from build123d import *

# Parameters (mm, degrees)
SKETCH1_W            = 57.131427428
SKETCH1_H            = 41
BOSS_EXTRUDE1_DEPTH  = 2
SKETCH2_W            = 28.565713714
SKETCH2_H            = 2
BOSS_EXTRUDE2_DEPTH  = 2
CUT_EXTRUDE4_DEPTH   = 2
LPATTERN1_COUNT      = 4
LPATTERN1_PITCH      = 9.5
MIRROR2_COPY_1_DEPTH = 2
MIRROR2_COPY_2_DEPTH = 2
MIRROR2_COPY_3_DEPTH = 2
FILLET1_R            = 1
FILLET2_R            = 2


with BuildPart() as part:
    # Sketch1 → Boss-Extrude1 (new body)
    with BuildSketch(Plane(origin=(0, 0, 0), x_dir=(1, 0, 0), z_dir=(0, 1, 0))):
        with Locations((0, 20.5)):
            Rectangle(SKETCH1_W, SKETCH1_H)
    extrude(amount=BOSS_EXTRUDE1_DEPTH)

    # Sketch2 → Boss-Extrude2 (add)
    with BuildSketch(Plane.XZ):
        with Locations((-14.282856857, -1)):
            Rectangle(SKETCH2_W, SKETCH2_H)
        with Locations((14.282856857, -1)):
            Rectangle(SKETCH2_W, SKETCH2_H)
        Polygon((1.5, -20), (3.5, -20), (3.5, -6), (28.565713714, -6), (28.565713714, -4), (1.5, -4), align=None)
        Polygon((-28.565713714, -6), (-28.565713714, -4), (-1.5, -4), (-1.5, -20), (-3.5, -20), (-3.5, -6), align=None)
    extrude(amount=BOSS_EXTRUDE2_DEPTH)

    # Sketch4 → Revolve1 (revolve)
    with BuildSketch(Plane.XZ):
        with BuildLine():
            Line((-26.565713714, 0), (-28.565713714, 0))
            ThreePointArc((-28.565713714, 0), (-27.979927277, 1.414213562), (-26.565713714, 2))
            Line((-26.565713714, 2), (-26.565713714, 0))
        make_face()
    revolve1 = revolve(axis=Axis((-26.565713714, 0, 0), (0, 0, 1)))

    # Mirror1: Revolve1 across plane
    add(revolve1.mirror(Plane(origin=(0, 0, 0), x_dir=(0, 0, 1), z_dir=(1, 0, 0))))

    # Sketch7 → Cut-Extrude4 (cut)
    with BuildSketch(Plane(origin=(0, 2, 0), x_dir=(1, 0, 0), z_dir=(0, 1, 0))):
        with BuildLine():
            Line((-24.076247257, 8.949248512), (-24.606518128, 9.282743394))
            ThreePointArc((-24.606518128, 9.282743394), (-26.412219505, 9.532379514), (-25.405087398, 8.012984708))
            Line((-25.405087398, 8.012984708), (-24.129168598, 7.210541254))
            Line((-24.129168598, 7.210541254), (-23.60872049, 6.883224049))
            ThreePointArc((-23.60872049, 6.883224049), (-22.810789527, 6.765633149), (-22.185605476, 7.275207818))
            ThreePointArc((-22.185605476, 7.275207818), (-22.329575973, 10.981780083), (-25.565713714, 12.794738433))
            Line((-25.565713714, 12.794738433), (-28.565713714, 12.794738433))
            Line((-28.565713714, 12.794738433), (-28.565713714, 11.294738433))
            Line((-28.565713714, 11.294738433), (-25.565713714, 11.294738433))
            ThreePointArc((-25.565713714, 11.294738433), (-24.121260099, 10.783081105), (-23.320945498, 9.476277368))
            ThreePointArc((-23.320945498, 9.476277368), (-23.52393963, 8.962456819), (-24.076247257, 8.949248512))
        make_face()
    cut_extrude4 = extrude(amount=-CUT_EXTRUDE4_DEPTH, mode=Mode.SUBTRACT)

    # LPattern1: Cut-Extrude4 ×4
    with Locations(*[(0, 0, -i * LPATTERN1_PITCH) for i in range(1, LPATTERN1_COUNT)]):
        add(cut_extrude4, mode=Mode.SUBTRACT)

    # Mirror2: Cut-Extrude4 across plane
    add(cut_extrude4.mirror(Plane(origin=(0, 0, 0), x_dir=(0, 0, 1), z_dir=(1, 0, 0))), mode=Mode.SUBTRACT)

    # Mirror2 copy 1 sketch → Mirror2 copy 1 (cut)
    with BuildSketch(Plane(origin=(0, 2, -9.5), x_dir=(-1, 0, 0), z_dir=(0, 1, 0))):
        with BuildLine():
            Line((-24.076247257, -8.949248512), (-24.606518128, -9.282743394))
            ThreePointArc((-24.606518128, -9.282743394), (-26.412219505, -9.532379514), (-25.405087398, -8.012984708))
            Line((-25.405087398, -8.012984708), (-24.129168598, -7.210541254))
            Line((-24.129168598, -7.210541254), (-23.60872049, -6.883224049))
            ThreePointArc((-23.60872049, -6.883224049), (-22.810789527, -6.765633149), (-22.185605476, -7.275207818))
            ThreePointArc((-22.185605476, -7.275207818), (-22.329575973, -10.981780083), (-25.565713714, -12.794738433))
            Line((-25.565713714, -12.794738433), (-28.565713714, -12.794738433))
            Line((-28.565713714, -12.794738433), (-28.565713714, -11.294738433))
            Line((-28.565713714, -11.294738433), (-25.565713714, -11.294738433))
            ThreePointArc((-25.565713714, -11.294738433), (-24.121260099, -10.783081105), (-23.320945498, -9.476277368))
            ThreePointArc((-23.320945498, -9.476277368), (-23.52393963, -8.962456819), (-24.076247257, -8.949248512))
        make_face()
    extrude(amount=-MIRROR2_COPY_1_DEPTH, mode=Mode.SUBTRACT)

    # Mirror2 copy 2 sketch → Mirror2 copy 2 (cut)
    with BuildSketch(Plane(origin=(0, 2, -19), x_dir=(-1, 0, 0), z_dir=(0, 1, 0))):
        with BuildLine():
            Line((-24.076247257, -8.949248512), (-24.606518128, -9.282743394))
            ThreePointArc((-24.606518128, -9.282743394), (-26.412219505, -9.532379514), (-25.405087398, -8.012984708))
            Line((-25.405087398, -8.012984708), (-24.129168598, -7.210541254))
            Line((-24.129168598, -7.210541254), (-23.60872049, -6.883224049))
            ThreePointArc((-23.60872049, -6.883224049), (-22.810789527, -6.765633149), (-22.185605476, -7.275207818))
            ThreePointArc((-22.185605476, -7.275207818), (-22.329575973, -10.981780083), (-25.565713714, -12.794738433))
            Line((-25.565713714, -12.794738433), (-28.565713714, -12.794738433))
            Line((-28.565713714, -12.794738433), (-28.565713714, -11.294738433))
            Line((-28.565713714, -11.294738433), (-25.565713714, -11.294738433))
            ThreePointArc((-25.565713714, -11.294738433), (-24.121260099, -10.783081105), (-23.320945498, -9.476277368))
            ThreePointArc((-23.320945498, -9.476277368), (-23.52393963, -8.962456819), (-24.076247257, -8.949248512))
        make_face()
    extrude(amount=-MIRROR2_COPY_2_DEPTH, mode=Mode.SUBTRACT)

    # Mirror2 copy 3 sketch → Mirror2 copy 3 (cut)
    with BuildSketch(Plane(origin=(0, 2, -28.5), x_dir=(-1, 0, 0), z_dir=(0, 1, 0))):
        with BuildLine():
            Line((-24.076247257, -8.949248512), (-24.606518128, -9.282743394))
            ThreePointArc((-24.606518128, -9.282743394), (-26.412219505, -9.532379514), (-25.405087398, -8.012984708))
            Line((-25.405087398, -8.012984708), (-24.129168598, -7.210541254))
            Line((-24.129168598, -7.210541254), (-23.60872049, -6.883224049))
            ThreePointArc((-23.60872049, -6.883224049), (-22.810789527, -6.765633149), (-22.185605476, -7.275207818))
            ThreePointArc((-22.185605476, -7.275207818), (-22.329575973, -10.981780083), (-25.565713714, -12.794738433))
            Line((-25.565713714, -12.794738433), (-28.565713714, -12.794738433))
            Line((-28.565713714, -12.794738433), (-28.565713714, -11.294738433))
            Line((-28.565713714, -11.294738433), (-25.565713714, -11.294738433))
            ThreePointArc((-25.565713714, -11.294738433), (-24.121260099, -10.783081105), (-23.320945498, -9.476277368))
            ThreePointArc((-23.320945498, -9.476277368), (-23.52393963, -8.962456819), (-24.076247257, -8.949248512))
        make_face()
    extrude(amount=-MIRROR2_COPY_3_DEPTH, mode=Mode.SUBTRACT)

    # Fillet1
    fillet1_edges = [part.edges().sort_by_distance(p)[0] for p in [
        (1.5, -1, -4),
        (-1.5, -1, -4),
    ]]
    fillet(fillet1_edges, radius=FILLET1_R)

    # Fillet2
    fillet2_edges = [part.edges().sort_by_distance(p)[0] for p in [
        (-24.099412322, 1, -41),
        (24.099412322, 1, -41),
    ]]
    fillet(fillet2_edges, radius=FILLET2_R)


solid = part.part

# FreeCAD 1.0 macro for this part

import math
import FreeCAD as App
import Part
import Sketcher


def edges_at(feature, points):
    """Names of the edges that pass closest to the given points."""
    edges = feature.Shape.Edges
    near = lambda p: min(range(len(edges)), key=lambda i: edges[i].distToShape(Part.Vertex(*p))[0])
    return sorted({f"Edge{near(p) + 1}" for p in points})


def add_polygon(sketch, points):
    """Adds a closed chain of lines whose ends are joined by coincident constraints."""
    first, n = sketch.GeometryCount, len(points)
    for a, b in zip(points, points[1:] + points[:1]):
        sketch.addGeometry(Part.LineSegment(App.Vector(*a, 0), App.Vector(*b, 0)), False)
    for i in range(n):
        sketch.addConstraint(Sketcher.Constraint("Coincident", first + i, 2, first + (i + 1) % n, 1))

doc = App.newDocument("Part")
body = doc.addObject("PartDesign::Body", "Body")

sketch1 = body.newObject("Sketcher::SketchObject", "Sketch")
sketch1.AttachmentSupport = (doc.getObject("XZ_Plane"), [""])
sketch1.MapMode = "FlatFace"
add_polygon(sketch1, [(-28.565714, -41), (-28.565714, 0), (28.565714, 0), (28.565714, -41)])
sketch1.addConstraint(Sketcher.Constraint("Vertical", 0))
sketch1.addConstraint(Sketcher.Constraint("Horizontal", 1))
sketch1.addConstraint(Sketcher.Constraint("Vertical", 2))
sketch1.addConstraint(Sketcher.Constraint("Horizontal", 3))
sketch1.addConstraint(Sketcher.Constraint("Symmetric", 0, 2, 1, 2, -1, 1))
sketch1.addConstraint(Sketcher.Constraint("DistanceY", 0, 1, 0, 2, 41.0))
sketch1.addConstraint(Sketcher.Constraint("DistanceX", 1, 1, 1, 2, 57.131427))
pad1 = body.newObject("PartDesign::Pad", "Pad")
pad1.Profile = sketch1
pad1.Length = 2
pad1.Reversed = True

sketch2 = body.newObject("Sketcher::SketchObject", "Sketch001")
sketch2.AttachmentSupport = (doc.getObject("XZ_Plane"), [""])
sketch2.MapMode = "FlatFace"
add_polygon(sketch2, [(-28.565714, 0), (-28.565714, -2), (28.565714, -2), (28.565714, 0)])
add_polygon(sketch2, [(1.5, -20), (3.5, -20), (3.5, -6), (28.565714, -6), (28.565714, -4), (1.5, -4)])
add_polygon(sketch2, [(-28.565714, -4), (-28.565714, -6), (-3.5, -6), (-3.5, -20), (-1.5, -20), (-1.5, -4)])
sketch2.addConstraint(Sketcher.Constraint("Vertical", 0))
sketch2.addConstraint(Sketcher.Constraint("Horizontal", 1))
sketch2.addConstraint(Sketcher.Constraint("Vertical", 2))
sketch2.addConstraint(Sketcher.Constraint("Horizontal", 3))
sketch2.addConstraint(Sketcher.Constraint("Horizontal", 4))
sketch2.addConstraint(Sketcher.Constraint("Vertical", 5))
sketch2.addConstraint(Sketcher.Constraint("Horizontal", 6))
sketch2.addConstraint(Sketcher.Constraint("Vertical", 7))
sketch2.addConstraint(Sketcher.Constraint("Horizontal", 8))
sketch2.addConstraint(Sketcher.Constraint("Vertical", 9))
sketch2.addConstraint(Sketcher.Constraint("Vertical", 10))
sketch2.addConstraint(Sketcher.Constraint("Horizontal", 11))
sketch2.addConstraint(Sketcher.Constraint("Vertical", 12))
sketch2.addConstraint(Sketcher.Constraint("Horizontal", 13))
sketch2.addConstraint(Sketcher.Constraint("Vertical", 14))
sketch2.addConstraint(Sketcher.Constraint("Horizontal", 15))
sketch2.addConstraint(Sketcher.Constraint("Symmetric", 2, 2, 3, 2, -1, 1))
sketch2.addConstraint(Sketcher.Constraint("Symmetric", 6, 2, 10, 2, -2))
sketch2.addConstraint(Sketcher.Constraint("Symmetric", 4, 2, 12, 2, -2))
sketch2.addConstraint(Sketcher.Constraint("Symmetric", 8, 2, 14, 2, -2))
sketch2.addConstraint(Sketcher.Constraint("Vertical", 2, 2, 6, 2))
sketch2.addConstraint(Sketcher.Constraint("Equal", 13, 0))
sketch2.addConstraint(Sketcher.Constraint("Equal", 2, 7))
sketch2.addConstraint(Sketcher.Constraint("DistanceX", 4, 1, 4, 2, 2.0))
sketch2.addConstraint(Sketcher.Constraint("DistanceY", 5, 1, 5, 2, 14.0))
sketch2.addConstraint(Sketcher.Constraint("DistanceY", 4, 2, -1, 1, 20.0))
sketch2.addConstraint(Sketcher.Constraint("DistanceX", 11, 2, 8, 2, 5.0))
sketch2.addConstraint(Sketcher.Constraint("DistanceX", 1, 1, 1, 2, 57.131427))
pad2 = body.newObject("PartDesign::Pad", "Pad001")
pad2.Profile = sketch2
pad2.Length = 2

sketch3 = body.newObject("Sketcher::SketchObject", "Sketch002")
sketch3.AttachmentSupport = (doc.getObject("XZ_Plane"), [""])
sketch3.MapMode = "FlatFace"
sketch3.addGeometry(Part.LineSegment(App.Vector(-28.565714, 0, 0), App.Vector(-26.565714, 0, 0)), False)
sketch3.addGeometry(Part.LineSegment(App.Vector(-26.565714, 0, 0), App.Vector(-26.565714, 2, 0)), False)
sketch3.addGeometry(Part.ArcOfCircle(Part.Circle(App.Vector(-26.565714, 0, 0), App.Vector(0, 0, 1), 2), math.radians(90), math.radians(180)), False)
sketch3.addGeometry(Part.LineSegment(App.Vector(-26.565714, 0, 0), App.Vector(-26.565714, 2, 0)), True)
sketch3.addConstraint(Sketcher.Constraint("Coincident", 0, 2, 1, 1))
sketch3.addConstraint(Sketcher.Constraint("Coincident", 1, 2, 2, 1))
sketch3.addConstraint(Sketcher.Constraint("Coincident", 2, 2, 0, 1))
sketch3.addConstraint(Sketcher.Constraint("Horizontal", 0))
sketch3.addConstraint(Sketcher.Constraint("Vertical", 1))
sketch3.addConstraint(Sketcher.Constraint("Vertical", 3))
sketch3.addConstraint(Sketcher.Constraint("Coincident", 0, 2, 2, 3))
sketch3.addConstraint(Sketcher.Constraint("Coincident", 3, 1, 2, 3))
sketch3.addConstraint(Sketcher.Constraint("PointOnObject", 2, 3, -1))
sketch3.addConstraint(Sketcher.Constraint("Equal", 1, 3))
sketch3.addConstraint(Sketcher.Constraint("Radius", 2, 2.0))
sketch3.addConstraint(Sketcher.Constraint("DistanceX", 2, 3, -1, 1, 26.565714))
revolution = body.newObject("PartDesign::Revolution", "Revolution")
revolution.Profile = sketch3
revolution.ReferenceAxis = (sketch3, ["Axis0"])
revolution.Angle = 360
doc.recompute()

mirrored = body.newObject("PartDesign::Mirrored", "Mirrored")
mirrored.Originals = [revolution]
mirrored.MirrorPlane = (doc.getObject("YZ_Plane"), [""])
body.Tip = mirrored

sketch4 = body.newObject("Sketcher::SketchObject", "Sketch003")
sketch4.AttachmentSupport = (doc.getObject("XZ_Plane"), [""])
sketch4.MapMode = "FlatFace"
sketch4.AttachmentOffset = App.Placement(App.Vector(0, 0, -2), App.Rotation())
sketch4.addGeometry(Part.LineSegment(App.Vector(-24.076247, -8.949249, 0), App.Vector(-24.606518, -9.282743, 0)), False)
sketch4.addGeometry(Part.ArcOfCircle(Part.Circle(App.Vector(-25.565714, -9, 0), App.Vector(0, 0, 1), 1), math.radians(80.756748), math.radians(343.575993)), False)
sketch4.addGeometry(Part.LineSegment(App.Vector(-25.405087, -8.012985, 0), App.Vector(-24.129169, -7.210541, 0)), False)
sketch4.addGeometry(Part.LineSegment(App.Vector(-24.129169, -7.210541, 0), App.Vector(-23.60872, -6.883224, 0)), False)
sketch4.addGeometry(Part.ArcOfCircle(Part.Circle(App.Vector(-23.076341, -7.72973, 0), App.Vector(0, 0, 1), 1), math.radians(27.034184), math.radians(122.16637)), False)
sketch4.addGeometry(Part.ArcOfCircle(Part.Circle(App.Vector(-25.565714, -9, 0), App.Vector(0, 0, 1), 3.794738), math.radians(-90), math.radians(27.034184)), False)
sketch4.addGeometry(Part.LineSegment(App.Vector(-25.565714, -12.794738, 0), App.Vector(-28.565714, -12.794738, 0)), False)
sketch4.addGeometry(Part.LineSegment(App.Vector(-28.565714, -12.794738, 0), App.Vector(-28.565714, -11.294738, 0)), False)
sketch4.addGeometry(Part.LineSegment(App.Vector(-28.565714, -11.294738, 0), App.Vector(-25.565714, -11.294738, 0)), False)
sketch4.addGeometry(Part.ArcOfCircle(Part.Circle(App.Vector(-25.565714, -9, 0), App.Vector(0, 0, 1), 2.294738), math.radians(-90), math.radians(-11.978927)), False)
sketch4.addGeometry(Part.ArcOfCircle(Part.Circle(App.Vector(-23.810057, -9.372501, 0), App.Vector(0, 0, 1), 0.5), math.radians(-11.978927), math.radians(122.16637)), False)
sketch4.addConstraint(Sketcher.Constraint("Coincident", 0, 2, 1, 2))
sketch4.addConstraint(Sketcher.Constraint("Coincident", 1, 1, 2, 1))
sketch4.addConstraint(Sketcher.Constraint("Coincident", 2, 2, 3, 1))
sketch4.addConstraint(Sketcher.Constraint("Tangent", 3, 2, 4, 2))
sketch4.addConstraint(Sketcher.Constraint("Tangent", 4, 1, 5, 2))
sketch4.addConstraint(Sketcher.Constraint("Tangent", 5, 1, 6, 1))
sketch4.addConstraint(Sketcher.Constraint("Coincident", 6, 2, 7, 1))
sketch4.addConstraint(Sketcher.Constraint("Coincident", 7, 2, 8, 1))
sketch4.addConstraint(Sketcher.Constraint("Tangent", 8, 2, 9, 1))
sketch4.addConstraint(Sketcher.Constraint("Tangent", 9, 2, 10, 1))
sketch4.addConstraint(Sketcher.Constraint("Tangent", 10, 2, 0, 1))
sketch4.addConstraint(Sketcher.Constraint("Horizontal", 6))
sketch4.addConstraint(Sketcher.Constraint("Vertical", 7))
sketch4.addConstraint(Sketcher.Constraint("Horizontal", 8))
sketch4.addConstraint(Sketcher.Constraint("Coincident", 5, 3, 1, 3))
sketch4.addConstraint(Sketcher.Constraint("Coincident", 9, 3, 1, 3))
sketch4.addConstraint(Sketcher.Constraint("Equal", 1, 4))
sketch4.addConstraint(Sketcher.Constraint("Parallel", 0, 2))
sketch4.addConstraint(Sketcher.Constraint("Parallel", 2, 3))
sketch4.addConstraint(Sketcher.Constraint("Radius", 1, 1.0))
sketch4.addConstraint(Sketcher.Constraint("Radius", 10, 0.5))
sketch4.addConstraint(Sketcher.Constraint("DistanceX", 6, 2, 6, 1, 3.0))
sketch4.addConstraint(Sketcher.Constraint("DistanceY", 7, 1, 7, 2, 1.5))
sketch4.addConstraint(Sketcher.Constraint("DistanceY", 1, 3, -1, 1, 9.0))
sketch4.addConstraint(Sketcher.Constraint("Radius", 5, 3.794738))
sketch4.addConstraint(Sketcher.Constraint("DistanceY", 10, 3, -1, 1, 9.372501))
sketch4.addConstraint(Sketcher.Constraint("DistanceX", 10, 2, 9, 2, 0.755302))
sketch4.addConstraint(Sketcher.Constraint("Distance", 3, 0.614819))
sketch4.addConstraint(Sketcher.Constraint("DistanceX", 4, 3, -1, 1, 23.076341))
sketch4.addConstraint(Sketcher.Constraint("DistanceY", 4, 3, -1, 1, 7.72973))
pocket1 = body.newObject("PartDesign::Pocket", "Pocket")
pocket1.Profile = sketch4
pocket1.Length = 2
pocket1.Reversed = True
doc.recompute()

linearpattern = body.newObject("PartDesign::LinearPattern", "LinearPattern")
linearpattern.Originals = [pocket1]
linearpattern.Direction = (doc.getObject("Z_Axis"), [""])
linearpattern.Mode = "offset"
linearpattern.Offset = 9.5
linearpattern.Occurrences = 4
linearpattern.Reversed = True
body.Tip = linearpattern
doc.recompute()

mirrored2 = body.newObject("PartDesign::Mirrored", "Mirrored001")
mirrored2.Originals = [pocket1]
mirrored2.MirrorPlane = (doc.getObject("YZ_Plane"), [""])
body.Tip = mirrored2

sketch5 = body.newObject("Sketcher::SketchObject", "Sketch004")
sketch5.AttachmentSupport = (doc.getObject("XZ_Plane"), [""])
sketch5.MapMode = "FlatFace"
sketch5.AttachmentOffset = App.Placement(App.Vector(0, 0, -2), App.Rotation())
sketch5.addGeometry(Part.LineSegment(App.Vector(24.606518, -18.782743, 0), App.Vector(24.076247, -18.449249, 0)), False)
sketch5.addGeometry(Part.ArcOfCircle(Part.Circle(App.Vector(23.810057, -18.872501, 0), App.Vector(0, 0, 1), 0.5), math.radians(57.83363), math.radians(191.978927)), False)
sketch5.addGeometry(Part.ArcOfCircle(Part.Circle(App.Vector(25.565714, -18.5, 0), App.Vector(0, 0, 1), 2.294738), math.radians(-168.021073), math.radians(-90)), False)
sketch5.addGeometry(Part.LineSegment(App.Vector(25.565714, -20.794738, 0), App.Vector(28.565714, -20.794738, 0)), False)
sketch5.addGeometry(Part.LineSegment(App.Vector(28.565714, -20.794738, 0), App.Vector(28.565714, -22.294738, 0)), False)
sketch5.addGeometry(Part.LineSegment(App.Vector(28.565714, -22.294738, 0), App.Vector(25.565714, -22.294738, 0)), False)
sketch5.addGeometry(Part.ArcOfCircle(Part.Circle(App.Vector(25.565714, -18.5, 0), App.Vector(0, 0, 1), 3.794738), math.radians(152.965816), math.radians(270)), False)
sketch5.addGeometry(Part.ArcOfCircle(Part.Circle(App.Vector(23.076341, -17.22973, 0), App.Vector(0, 0, 1), 1), math.radians(57.83363), math.radians(152.965816)), False)
sketch5.addGeometry(Part.LineSegment(App.Vector(23.60872, -16.383224, 0), App.Vector(24.129169, -16.710541, 0)), False)
sketch5.addGeometry(Part.LineSegment(App.Vector(24.129169, -16.710541, 0), App.Vector(25.405087, -17.512985, 0)), False)
sketch5.addGeometry(Part.ArcOfCircle(Part.Circle(App.Vector(25.565714, -18.5, 0), App.Vector(0, 0, 1), 1), math.radians(-163.575993), math.radians(99.243252)), False)
sketch5.addConstraint(Sketcher.Constraint("Tangent", 0, 2, 1, 1))
sketch5.addConstraint(Sketcher.Constraint("Tangent", 1, 2, 2, 1))
sketch5.addConstraint(Sketcher.Constraint("Tangent", 2, 2, 3, 1))
sketch5.addConstraint(Sketcher.Constraint("Coincident", 3, 2, 4, 1))
sketch5.addConstraint(Sketcher.Constraint("Coincident", 4, 2, 5, 1))
sketch5.addConstraint(Sketcher.Constraint("Tangent", 5, 2, 6, 2))
sketch5.addConstraint(Sketcher.Constraint("Tangent", 6, 1, 7, 2))
sketch5.addConstraint(Sketcher.Constraint("Tangent", 7, 1, 8, 1))
sketch5.addConstraint(Sketcher.Constraint("Coincident", 8, 2, 9, 1))
sketch5.addConstraint(Sketcher.Constraint("Coincident", 9, 2, 10, 2))
sketch5.addConstraint(Sketcher.Constraint("Coincident", 10, 1, 0, 1))
sketch5.addConstraint(Sketcher.Constraint("Horizontal", 3))
sketch5.addConstraint(Sketcher.Constraint("Vertical", 4))
sketch5.addConstraint(Sketcher.Constraint("Horizontal", 5))
sketch5.addConstraint(Sketcher.Constraint("Coincident", 6, 3, 2, 3))
sketch5.addConstraint(Sketcher.Constraint("Coincident", 10, 3, 2, 3))
sketch5.addConstraint(Sketcher.Constraint("Equal", 7, 10))
sketch5.addConstraint(Sketcher.Constraint("Parallel", 0, 8))
sketch5.addConstraint(Sketcher.Constraint("Parallel", 8, 9))
sketch5.addConstraint(Sketcher.Constraint("Radius", 7, 1.0))
sketch5.addConstraint(Sketcher.Constraint("Radius", 1, 0.5))
sketch5.addConstraint(Sketcher.Constraint("DistanceX", 3, 1, 3, 2, 3.0))
sketch5.addConstraint(Sketcher.Constraint("DistanceY", 4, 2, 4, 1, 1.5))
sketch5.addConstraint(Sketcher.Constraint("DistanceY", 2, 3, -1, 1, 18.5))
sketch5.addConstraint(Sketcher.Constraint("Radius", 2, 2.294738))
sketch5.addConstraint(Sketcher.Constraint("DistanceY", 1, 3, -1, 1, 18.872501))
sketch5.addConstraint(Sketcher.Constraint("DistanceX", 1, 2, 0, 2, 0.755302))
sketch5.addConstraint(Sketcher.Constraint("Distance", 8, 0.614819))
sketch5.addConstraint(Sketcher.Constraint("DistanceX", -1, 1, 7, 3, 23.076341))
sketch5.addConstraint(Sketcher.Constraint("DistanceY", 7, 3, -1, 1, 17.22973))
pocket2 = body.newObject("PartDesign::Pocket", "Pocket001")
pocket2.Profile = sketch5
pocket2.Length = 2
pocket2.Reversed = True

sketch6 = body.newObject("Sketcher::SketchObject", "Sketch005")
sketch6.AttachmentSupport = (doc.getObject("XZ_Plane"), [""])
sketch6.MapMode = "FlatFace"
sketch6.AttachmentOffset = App.Placement(App.Vector(0, 0, -2), App.Rotation())
sketch6.addGeometry(Part.LineSegment(App.Vector(24.606518, -28.282743, 0), App.Vector(24.076247, -27.949249, 0)), False)
sketch6.addGeometry(Part.ArcOfCircle(Part.Circle(App.Vector(23.810057, -28.372501, 0), App.Vector(0, 0, 1), 0.5), math.radians(57.83363), math.radians(191.978927)), False)
sketch6.addGeometry(Part.ArcOfCircle(Part.Circle(App.Vector(25.565714, -28, 0), App.Vector(0, 0, 1), 2.294738), math.radians(-168.021073), math.radians(-90)), False)
sketch6.addGeometry(Part.LineSegment(App.Vector(25.565714, -30.294738, 0), App.Vector(28.565714, -30.294738, 0)), False)
sketch6.addGeometry(Part.LineSegment(App.Vector(28.565714, -30.294738, 0), App.Vector(28.565714, -31.794738, 0)), False)
sketch6.addGeometry(Part.LineSegment(App.Vector(28.565714, -31.794738, 0), App.Vector(25.565714, -31.794738, 0)), False)
sketch6.addGeometry(Part.ArcOfCircle(Part.Circle(App.Vector(25.565714, -28, 0), App.Vector(0, 0, 1), 3.794738), math.radians(152.965816), math.radians(270)), False)
sketch6.addGeometry(Part.ArcOfCircle(Part.Circle(App.Vector(23.076341, -26.72973, 0), App.Vector(0, 0, 1), 1), math.radians(57.83363), math.radians(152.965816)), False)
sketch6.addGeometry(Part.LineSegment(App.Vector(23.60872, -25.883224, 0), App.Vector(24.129169, -26.210541, 0)), False)
sketch6.addGeometry(Part.LineSegment(App.Vector(24.129169, -26.210541, 0), App.Vector(25.405087, -27.012985, 0)), False)
sketch6.addGeometry(Part.ArcOfCircle(Part.Circle(App.Vector(25.565714, -28, 0), App.Vector(0, 0, 1), 1), math.radians(-163.575993), math.radians(99.243252)), False)
sketch6.addConstraint(Sketcher.Constraint("Tangent", 0, 2, 1, 1))
sketch6.addConstraint(Sketcher.Constraint("Tangent", 1, 2, 2, 1))
sketch6.addConstraint(Sketcher.Constraint("Tangent", 2, 2, 3, 1))
sketch6.addConstraint(Sketcher.Constraint("Coincident", 3, 2, 4, 1))
sketch6.addConstraint(Sketcher.Constraint("Coincident", 4, 2, 5, 1))
sketch6.addConstraint(Sketcher.Constraint("Tangent", 5, 2, 6, 2))
sketch6.addConstraint(Sketcher.Constraint("Tangent", 6, 1, 7, 2))
sketch6.addConstraint(Sketcher.Constraint("Tangent", 7, 1, 8, 1))
sketch6.addConstraint(Sketcher.Constraint("Coincident", 8, 2, 9, 1))
sketch6.addConstraint(Sketcher.Constraint("Coincident", 9, 2, 10, 2))
sketch6.addConstraint(Sketcher.Constraint("Coincident", 10, 1, 0, 1))
sketch6.addConstraint(Sketcher.Constraint("Horizontal", 3))
sketch6.addConstraint(Sketcher.Constraint("Vertical", 4))
sketch6.addConstraint(Sketcher.Constraint("Horizontal", 5))
sketch6.addConstraint(Sketcher.Constraint("Coincident", 6, 3, 2, 3))
sketch6.addConstraint(Sketcher.Constraint("Coincident", 10, 3, 2, 3))
sketch6.addConstraint(Sketcher.Constraint("Equal", 7, 10))
sketch6.addConstraint(Sketcher.Constraint("Parallel", 0, 8))
sketch6.addConstraint(Sketcher.Constraint("Parallel", 8, 9))
sketch6.addConstraint(Sketcher.Constraint("Radius", 7, 1.0))
sketch6.addConstraint(Sketcher.Constraint("Radius", 1, 0.5))
sketch6.addConstraint(Sketcher.Constraint("DistanceX", 3, 1, 3, 2, 3.0))
sketch6.addConstraint(Sketcher.Constraint("DistanceY", 4, 2, 4, 1, 1.5))
sketch6.addConstraint(Sketcher.Constraint("DistanceY", 2, 3, -1, 1, 28.0))
sketch6.addConstraint(Sketcher.Constraint("Radius", 2, 2.294738))
sketch6.addConstraint(Sketcher.Constraint("DistanceY", 1, 3, -1, 1, 28.372501))
sketch6.addConstraint(Sketcher.Constraint("DistanceX", 1, 2, 0, 2, 0.755302))
sketch6.addConstraint(Sketcher.Constraint("Distance", 8, 0.614819))
sketch6.addConstraint(Sketcher.Constraint("DistanceX", -1, 1, 7, 3, 23.076341))
sketch6.addConstraint(Sketcher.Constraint("DistanceY", 7, 3, -1, 1, 26.72973))
pocket3 = body.newObject("PartDesign::Pocket", "Pocket002")
pocket3.Profile = sketch6
pocket3.Length = 2
pocket3.Reversed = True

sketch7 = body.newObject("Sketcher::SketchObject", "Sketch006")
sketch7.AttachmentSupport = (doc.getObject("XZ_Plane"), [""])
sketch7.MapMode = "FlatFace"
sketch7.AttachmentOffset = App.Placement(App.Vector(0, 0, -2), App.Rotation())
sketch7.addGeometry(Part.LineSegment(App.Vector(24.606518, -37.782743, 0), App.Vector(24.076247, -37.449249, 0)), False)
sketch7.addGeometry(Part.ArcOfCircle(Part.Circle(App.Vector(23.810057, -37.872501, 0), App.Vector(0, 0, 1), 0.5), math.radians(57.83363), math.radians(191.978927)), False)
sketch7.addGeometry(Part.ArcOfCircle(Part.Circle(App.Vector(25.565714, -37.5, 0), App.Vector(0, 0, 1), 2.294738), math.radians(-168.021073), math.radians(-90)), False)
sketch7.addGeometry(Part.LineSegment(App.Vector(25.565714, -39.794738, 0), App.Vector(28.565714, -39.794738, 0)), False)
sketch7.addGeometry(Part.LineSegment(App.Vector(28.565714, -39.794738, 0), App.Vector(28.565714, -41.294738, 0)), False)
sketch7.addGeometry(Part.LineSegment(App.Vector(28.565714, -41.294738, 0), App.Vector(25.565714, -41.294738, 0)), False)
sketch7.addGeometry(Part.ArcOfCircle(Part.Circle(App.Vector(25.565714, -37.5, 0), App.Vector(0, 0, 1), 3.794738), math.radians(152.965816), math.radians(270)), False)
sketch7.addGeometry(Part.ArcOfCircle(Part.Circle(App.Vector(23.076341, -36.22973, 0), App.Vector(0, 0, 1), 1), math.radians(57.83363), math.radians(152.965816)), False)
sketch7.addGeometry(Part.LineSegment(App.Vector(23.60872, -35.383224, 0), App.Vector(24.129169, -35.710541, 0)), False)
sketch7.addGeometry(Part.LineSegment(App.Vector(24.129169, -35.710541, 0), App.Vector(25.405087, -36.512985, 0)), False)
sketch7.addGeometry(Part.ArcOfCircle(Part.Circle(App.Vector(25.565714, -37.5, 0), App.Vector(0, 0, 1), 1), math.radians(-163.575993), math.radians(99.243252)), False)
sketch7.addConstraint(Sketcher.Constraint("Tangent", 0, 2, 1, 1))
sketch7.addConstraint(Sketcher.Constraint("Tangent", 1, 2, 2, 1))
sketch7.addConstraint(Sketcher.Constraint("Tangent", 2, 2, 3, 1))
sketch7.addConstraint(Sketcher.Constraint("Coincident", 3, 2, 4, 1))
sketch7.addConstraint(Sketcher.Constraint("Coincident", 4, 2, 5, 1))
sketch7.addConstraint(Sketcher.Constraint("Tangent", 5, 2, 6, 2))
sketch7.addConstraint(Sketcher.Constraint("Tangent", 6, 1, 7, 2))
sketch7.addConstraint(Sketcher.Constraint("Tangent", 7, 1, 8, 1))
sketch7.addConstraint(Sketcher.Constraint("Coincident", 8, 2, 9, 1))
sketch7.addConstraint(Sketcher.Constraint("Coincident", 9, 2, 10, 2))
sketch7.addConstraint(Sketcher.Constraint("Coincident", 10, 1, 0, 1))
sketch7.addConstraint(Sketcher.Constraint("Horizontal", 3))
sketch7.addConstraint(Sketcher.Constraint("Vertical", 4))
sketch7.addConstraint(Sketcher.Constraint("Horizontal", 5))
sketch7.addConstraint(Sketcher.Constraint("Coincident", 6, 3, 2, 3))
sketch7.addConstraint(Sketcher.Constraint("Coincident", 10, 3, 2, 3))
sketch7.addConstraint(Sketcher.Constraint("Equal", 7, 10))
sketch7.addConstraint(Sketcher.Constraint("Parallel", 0, 8))
sketch7.addConstraint(Sketcher.Constraint("Parallel", 8, 9))
sketch7.addConstraint(Sketcher.Constraint("Radius", 7, 1.0))
sketch7.addConstraint(Sketcher.Constraint("Radius", 1, 0.5))
sketch7.addConstraint(Sketcher.Constraint("DistanceX", 3, 1, 3, 2, 3.0))
sketch7.addConstraint(Sketcher.Constraint("DistanceY", 4, 2, 4, 1, 1.5))
sketch7.addConstraint(Sketcher.Constraint("DistanceY", 2, 3, -1, 1, 37.5))
sketch7.addConstraint(Sketcher.Constraint("Radius", 2, 2.294738))
sketch7.addConstraint(Sketcher.Constraint("DistanceY", 1, 3, -1, 1, 37.872501))
sketch7.addConstraint(Sketcher.Constraint("DistanceX", 1, 2, 0, 2, 0.755302))
sketch7.addConstraint(Sketcher.Constraint("Distance", 8, 0.614819))
sketch7.addConstraint(Sketcher.Constraint("DistanceX", -1, 1, 7, 3, 23.076341))
sketch7.addConstraint(Sketcher.Constraint("DistanceY", 7, 3, -1, 1, 36.22973))
pocket4 = body.newObject("PartDesign::Pocket", "Pocket003")
pocket4.Profile = sketch7
pocket4.Length = 2
pocket4.Reversed = True
doc.recompute()

fillet = body.newObject("PartDesign::Fillet", "Fillet")
fillet.Base = (pocket4, edges_at(pocket4, [(1.5, -1, -4), (-1.5, -1, -4)]))
fillet.Radius = 1
doc.recompute()

fillet2 = body.newObject("PartDesign::Fillet", "Fillet001")
fillet2.Base = (fillet, edges_at(fillet, [(-24.099, 1, -41), (24.099, 1, -41)]))
fillet2.Radius = 2

doc.recompute()
